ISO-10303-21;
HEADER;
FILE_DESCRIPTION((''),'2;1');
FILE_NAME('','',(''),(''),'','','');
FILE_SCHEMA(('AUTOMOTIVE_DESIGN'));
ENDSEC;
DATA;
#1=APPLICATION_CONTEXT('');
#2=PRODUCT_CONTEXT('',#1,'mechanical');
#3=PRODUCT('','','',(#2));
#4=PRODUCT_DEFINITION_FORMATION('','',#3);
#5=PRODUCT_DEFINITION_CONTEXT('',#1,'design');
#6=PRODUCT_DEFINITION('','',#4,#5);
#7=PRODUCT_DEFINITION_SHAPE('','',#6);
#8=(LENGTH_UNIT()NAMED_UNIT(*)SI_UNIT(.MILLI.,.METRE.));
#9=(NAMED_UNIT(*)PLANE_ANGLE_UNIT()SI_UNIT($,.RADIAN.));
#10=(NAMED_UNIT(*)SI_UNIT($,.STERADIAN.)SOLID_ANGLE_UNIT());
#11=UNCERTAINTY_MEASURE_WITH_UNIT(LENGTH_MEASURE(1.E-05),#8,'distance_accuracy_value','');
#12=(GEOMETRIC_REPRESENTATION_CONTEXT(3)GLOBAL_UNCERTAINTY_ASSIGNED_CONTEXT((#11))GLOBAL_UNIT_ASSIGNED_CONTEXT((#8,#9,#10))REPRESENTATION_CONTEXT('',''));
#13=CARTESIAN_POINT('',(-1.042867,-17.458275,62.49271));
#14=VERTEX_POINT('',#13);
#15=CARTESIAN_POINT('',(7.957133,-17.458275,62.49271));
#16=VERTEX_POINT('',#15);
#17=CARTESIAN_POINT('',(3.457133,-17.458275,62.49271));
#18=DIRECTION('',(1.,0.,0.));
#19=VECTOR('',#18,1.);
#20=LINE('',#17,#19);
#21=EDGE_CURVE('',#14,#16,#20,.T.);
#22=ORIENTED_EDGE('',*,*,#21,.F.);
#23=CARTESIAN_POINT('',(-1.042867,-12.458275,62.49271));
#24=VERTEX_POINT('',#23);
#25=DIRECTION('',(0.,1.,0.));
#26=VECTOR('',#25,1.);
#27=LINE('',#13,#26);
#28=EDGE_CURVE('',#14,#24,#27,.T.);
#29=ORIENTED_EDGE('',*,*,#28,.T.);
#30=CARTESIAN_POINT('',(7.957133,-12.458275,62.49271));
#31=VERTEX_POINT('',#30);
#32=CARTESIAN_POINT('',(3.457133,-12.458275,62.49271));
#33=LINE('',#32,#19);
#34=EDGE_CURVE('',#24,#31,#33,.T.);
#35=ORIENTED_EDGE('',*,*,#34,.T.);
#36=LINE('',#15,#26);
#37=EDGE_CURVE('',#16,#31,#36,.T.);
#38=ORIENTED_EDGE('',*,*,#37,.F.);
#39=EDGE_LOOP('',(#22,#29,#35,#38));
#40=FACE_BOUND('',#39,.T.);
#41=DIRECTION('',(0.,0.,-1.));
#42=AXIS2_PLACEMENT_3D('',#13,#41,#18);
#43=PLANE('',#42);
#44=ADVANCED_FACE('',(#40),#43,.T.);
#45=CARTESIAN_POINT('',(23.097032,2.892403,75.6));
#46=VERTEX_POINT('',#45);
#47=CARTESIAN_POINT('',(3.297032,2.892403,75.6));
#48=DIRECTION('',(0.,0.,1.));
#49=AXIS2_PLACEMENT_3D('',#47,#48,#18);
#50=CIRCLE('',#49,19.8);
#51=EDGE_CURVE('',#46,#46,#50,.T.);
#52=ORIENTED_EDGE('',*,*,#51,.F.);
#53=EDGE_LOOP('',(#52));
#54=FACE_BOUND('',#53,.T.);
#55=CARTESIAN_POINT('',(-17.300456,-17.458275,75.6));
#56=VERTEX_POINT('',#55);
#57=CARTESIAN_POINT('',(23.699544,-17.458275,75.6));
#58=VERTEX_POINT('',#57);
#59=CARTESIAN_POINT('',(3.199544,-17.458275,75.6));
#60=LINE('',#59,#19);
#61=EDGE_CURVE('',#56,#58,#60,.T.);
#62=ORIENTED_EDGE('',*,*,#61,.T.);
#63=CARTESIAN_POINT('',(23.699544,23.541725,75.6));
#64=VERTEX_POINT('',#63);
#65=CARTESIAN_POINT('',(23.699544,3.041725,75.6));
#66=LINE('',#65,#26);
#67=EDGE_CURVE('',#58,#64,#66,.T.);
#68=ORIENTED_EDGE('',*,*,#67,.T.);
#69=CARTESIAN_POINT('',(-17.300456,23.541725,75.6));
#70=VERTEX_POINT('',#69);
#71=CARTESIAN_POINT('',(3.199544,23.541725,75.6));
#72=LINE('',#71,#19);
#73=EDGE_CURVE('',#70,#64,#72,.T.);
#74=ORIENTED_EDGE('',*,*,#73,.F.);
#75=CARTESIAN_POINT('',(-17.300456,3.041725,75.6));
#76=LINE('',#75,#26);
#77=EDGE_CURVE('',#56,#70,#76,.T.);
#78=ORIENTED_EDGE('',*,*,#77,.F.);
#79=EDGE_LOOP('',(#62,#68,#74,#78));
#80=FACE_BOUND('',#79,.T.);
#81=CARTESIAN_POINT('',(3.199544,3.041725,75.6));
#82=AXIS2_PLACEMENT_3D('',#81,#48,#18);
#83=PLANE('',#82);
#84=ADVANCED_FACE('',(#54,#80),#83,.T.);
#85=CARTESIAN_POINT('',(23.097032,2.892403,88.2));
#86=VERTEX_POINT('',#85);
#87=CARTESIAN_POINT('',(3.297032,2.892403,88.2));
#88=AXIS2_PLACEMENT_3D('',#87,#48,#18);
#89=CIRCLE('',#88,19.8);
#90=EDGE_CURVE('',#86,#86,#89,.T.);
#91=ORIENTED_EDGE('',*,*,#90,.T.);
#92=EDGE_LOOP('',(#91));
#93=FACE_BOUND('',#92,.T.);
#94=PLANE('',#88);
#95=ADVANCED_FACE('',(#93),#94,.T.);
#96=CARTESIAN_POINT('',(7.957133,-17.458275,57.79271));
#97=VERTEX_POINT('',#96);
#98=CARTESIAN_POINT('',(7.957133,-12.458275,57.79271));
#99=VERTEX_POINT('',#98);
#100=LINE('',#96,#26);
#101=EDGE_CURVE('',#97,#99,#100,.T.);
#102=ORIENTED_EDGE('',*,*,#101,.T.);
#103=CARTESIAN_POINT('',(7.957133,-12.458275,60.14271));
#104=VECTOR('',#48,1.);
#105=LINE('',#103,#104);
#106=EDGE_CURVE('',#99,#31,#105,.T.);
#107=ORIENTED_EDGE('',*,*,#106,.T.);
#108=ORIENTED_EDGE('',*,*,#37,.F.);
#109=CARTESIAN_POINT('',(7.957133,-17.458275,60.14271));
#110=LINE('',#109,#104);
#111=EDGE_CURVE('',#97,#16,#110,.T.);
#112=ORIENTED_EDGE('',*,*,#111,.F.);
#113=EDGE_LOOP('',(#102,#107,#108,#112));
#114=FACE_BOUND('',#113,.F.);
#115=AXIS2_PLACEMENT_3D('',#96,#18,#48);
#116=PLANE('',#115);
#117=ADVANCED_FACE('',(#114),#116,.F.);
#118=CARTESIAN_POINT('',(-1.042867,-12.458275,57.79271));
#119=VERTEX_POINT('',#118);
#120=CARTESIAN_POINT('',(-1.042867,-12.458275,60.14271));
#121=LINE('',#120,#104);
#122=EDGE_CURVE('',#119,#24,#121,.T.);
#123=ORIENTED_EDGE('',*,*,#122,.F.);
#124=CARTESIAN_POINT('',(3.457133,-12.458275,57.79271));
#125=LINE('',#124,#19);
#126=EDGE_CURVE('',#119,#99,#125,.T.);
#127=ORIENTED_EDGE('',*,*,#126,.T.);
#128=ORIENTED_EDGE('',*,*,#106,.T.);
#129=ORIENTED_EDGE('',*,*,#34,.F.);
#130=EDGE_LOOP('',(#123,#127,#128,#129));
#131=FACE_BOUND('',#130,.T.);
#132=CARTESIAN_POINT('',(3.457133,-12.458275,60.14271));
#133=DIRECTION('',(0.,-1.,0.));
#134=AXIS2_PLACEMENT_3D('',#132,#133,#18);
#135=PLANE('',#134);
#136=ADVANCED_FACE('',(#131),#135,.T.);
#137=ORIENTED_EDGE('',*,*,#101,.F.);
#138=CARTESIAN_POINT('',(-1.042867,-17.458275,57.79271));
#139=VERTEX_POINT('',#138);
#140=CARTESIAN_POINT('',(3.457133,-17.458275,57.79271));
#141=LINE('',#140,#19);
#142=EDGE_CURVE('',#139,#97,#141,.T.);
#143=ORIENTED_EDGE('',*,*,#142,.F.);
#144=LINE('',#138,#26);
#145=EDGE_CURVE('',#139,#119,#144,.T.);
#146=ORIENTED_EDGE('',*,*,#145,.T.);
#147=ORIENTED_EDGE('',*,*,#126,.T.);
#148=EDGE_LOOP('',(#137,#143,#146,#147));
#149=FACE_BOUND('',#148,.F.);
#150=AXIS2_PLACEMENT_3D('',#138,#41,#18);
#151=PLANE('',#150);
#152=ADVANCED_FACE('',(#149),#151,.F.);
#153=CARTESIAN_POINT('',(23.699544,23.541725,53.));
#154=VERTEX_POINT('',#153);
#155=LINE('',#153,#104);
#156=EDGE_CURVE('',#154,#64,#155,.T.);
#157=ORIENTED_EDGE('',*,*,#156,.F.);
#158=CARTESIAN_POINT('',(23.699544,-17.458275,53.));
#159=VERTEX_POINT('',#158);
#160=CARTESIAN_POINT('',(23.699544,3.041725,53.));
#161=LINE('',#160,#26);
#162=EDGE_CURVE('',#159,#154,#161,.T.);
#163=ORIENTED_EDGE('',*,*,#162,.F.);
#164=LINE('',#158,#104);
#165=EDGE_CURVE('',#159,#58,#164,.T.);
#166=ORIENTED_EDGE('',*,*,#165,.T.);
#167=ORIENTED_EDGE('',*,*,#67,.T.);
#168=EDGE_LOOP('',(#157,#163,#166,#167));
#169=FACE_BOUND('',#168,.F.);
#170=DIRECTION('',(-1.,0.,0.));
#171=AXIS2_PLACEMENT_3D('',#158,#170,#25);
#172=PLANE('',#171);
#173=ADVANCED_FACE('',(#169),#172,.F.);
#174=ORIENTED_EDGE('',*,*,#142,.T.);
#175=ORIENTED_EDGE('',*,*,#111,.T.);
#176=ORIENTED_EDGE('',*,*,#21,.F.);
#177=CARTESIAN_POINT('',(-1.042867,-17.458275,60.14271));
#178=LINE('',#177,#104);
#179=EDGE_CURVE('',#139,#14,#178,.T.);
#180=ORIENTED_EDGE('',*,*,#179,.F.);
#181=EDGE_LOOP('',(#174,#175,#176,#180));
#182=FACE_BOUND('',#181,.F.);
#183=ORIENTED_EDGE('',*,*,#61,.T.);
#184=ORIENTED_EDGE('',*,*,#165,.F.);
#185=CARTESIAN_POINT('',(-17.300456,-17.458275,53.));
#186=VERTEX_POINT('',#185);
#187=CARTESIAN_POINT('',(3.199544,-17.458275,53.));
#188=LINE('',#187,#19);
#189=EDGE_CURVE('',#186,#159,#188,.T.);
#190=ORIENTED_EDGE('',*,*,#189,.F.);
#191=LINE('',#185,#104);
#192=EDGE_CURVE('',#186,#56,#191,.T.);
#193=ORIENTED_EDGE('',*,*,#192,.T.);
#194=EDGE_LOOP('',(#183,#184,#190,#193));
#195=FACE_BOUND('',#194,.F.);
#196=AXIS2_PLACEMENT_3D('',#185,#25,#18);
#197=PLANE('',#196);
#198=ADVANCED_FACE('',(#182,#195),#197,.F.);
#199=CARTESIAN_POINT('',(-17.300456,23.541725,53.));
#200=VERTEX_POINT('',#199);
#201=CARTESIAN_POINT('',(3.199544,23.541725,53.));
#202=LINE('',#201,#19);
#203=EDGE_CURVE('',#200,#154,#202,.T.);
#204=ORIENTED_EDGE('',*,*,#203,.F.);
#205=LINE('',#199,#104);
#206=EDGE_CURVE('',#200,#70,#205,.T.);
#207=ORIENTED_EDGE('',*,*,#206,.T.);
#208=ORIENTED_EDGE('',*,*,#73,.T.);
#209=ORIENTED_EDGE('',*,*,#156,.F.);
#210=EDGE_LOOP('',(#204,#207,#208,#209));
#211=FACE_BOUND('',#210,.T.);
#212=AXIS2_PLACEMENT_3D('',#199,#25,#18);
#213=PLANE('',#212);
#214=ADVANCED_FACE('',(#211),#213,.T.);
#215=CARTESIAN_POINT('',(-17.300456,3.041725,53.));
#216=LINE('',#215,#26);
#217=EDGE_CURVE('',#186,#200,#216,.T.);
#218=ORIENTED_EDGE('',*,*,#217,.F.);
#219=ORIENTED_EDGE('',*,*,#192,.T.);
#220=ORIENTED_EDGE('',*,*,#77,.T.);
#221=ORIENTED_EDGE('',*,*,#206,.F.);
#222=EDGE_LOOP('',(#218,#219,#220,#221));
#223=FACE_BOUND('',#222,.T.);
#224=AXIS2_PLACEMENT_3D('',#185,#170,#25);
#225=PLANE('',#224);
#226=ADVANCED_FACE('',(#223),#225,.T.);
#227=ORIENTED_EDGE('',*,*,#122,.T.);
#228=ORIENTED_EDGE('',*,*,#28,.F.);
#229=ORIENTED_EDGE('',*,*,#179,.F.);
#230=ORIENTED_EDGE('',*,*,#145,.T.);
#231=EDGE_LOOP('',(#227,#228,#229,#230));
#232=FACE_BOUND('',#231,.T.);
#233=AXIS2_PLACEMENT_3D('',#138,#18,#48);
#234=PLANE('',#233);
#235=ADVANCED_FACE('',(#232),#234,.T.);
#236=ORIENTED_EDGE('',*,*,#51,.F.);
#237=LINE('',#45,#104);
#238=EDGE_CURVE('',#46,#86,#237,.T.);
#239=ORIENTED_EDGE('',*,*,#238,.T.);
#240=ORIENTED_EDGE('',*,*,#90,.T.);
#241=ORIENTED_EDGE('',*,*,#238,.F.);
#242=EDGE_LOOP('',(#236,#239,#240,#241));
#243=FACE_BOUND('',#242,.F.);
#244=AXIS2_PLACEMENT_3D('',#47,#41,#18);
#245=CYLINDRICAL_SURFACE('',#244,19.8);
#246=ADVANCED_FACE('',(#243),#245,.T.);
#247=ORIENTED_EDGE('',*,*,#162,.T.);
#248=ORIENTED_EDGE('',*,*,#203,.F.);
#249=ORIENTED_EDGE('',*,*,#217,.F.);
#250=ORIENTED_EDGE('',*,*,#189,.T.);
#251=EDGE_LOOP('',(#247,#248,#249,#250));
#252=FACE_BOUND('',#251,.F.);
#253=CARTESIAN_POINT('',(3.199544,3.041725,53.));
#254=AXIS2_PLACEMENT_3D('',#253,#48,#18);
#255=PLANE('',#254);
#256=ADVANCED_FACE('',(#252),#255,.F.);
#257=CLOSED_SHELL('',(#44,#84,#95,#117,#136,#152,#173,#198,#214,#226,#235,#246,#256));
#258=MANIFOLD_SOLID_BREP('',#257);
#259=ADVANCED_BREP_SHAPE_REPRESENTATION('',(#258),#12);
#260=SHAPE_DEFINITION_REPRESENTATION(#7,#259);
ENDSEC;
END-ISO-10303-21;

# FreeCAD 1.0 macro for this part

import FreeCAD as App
import Part
import Sketcher
from FreeCAD import Vector


def add_polygon(sketch, points):
    """Adds a closed chain of lines whose ends are joined by coincident constraints."""
    first, n = sketch.GeometryCount, len(points)
    for a, b in zip(points, points[1:] + points[:1]):
        sketch.addGeometry(Part.LineSegment(App.Vector(*a, 0), App.Vector(*b, 0)), False)
    for i in range(n):
        sketch.addConstraint(Sketcher.Constraint("Coincident", first + i, 2, first + (i + 1) % n, 1))

doc = App.newDocument("Part")
body = doc.addObject("PartDesign::Body", "Body")

sketch1 = body.newObject("Sketcher::SketchObject", "Sketch")
sketch1.AttachmentSupport = (doc.getObject("XY_Plane"), [""])
sketch1.MapMode = "FlatFace"
add_polygon(sketch1, [(-17, 24), (-17, -17), (24, -17), (24, 24)])
sketch1.addConstraint([
    Sketcher.Constraint("Vertical", 0),
    Sketcher.Constraint("Horizontal", 1),
    Sketcher.Constraint("Vertical", 2),
    Sketcher.Constraint("Horizontal", 3),
    Sketcher.Constraint("Equal", 3, 0),
    Sketcher.Constraint("DistanceX", 1, 1, 1, 2, 41.0),
    Sketcher.Constraint("DistanceX", 0, 2, -1, 1, 17.300456),
    Sketcher.Constraint("DistanceY", 0, 2, -1, 1, 17.458275),
])
pad1 = body.newObject("PartDesign::Pad", "Pad")
pad1.Profile = sketch1
pad1.Length = 22.6

sketch2 = body.newObject("Sketcher::SketchObject", "Sketch001")
sketch2.AttachmentSupport = (doc.getObject("XY_Plane"), [""])
sketch2.MapMode = "FlatFace"
sketch2.AttachmentOffset = App.Placement(Vector(0, 0, 22.6), App.Rotation())
sketch2.addGeometry(Part.Circle(Vector(3, 3, 0), Vector(0, 0, 1), 20), False)
sketch2.addConstraint([
    Sketcher.Constraint("Diameter", 0, 39.6),
    Sketcher.Constraint("DistanceX", -1, 1, 0, 3, 3.297032),
    Sketcher.Constraint("DistanceY", -1, 1, 0, 3, 2.892403),
])
pad2 = body.newObject("PartDesign::Pad", "Pad001")
pad2.Profile = sketch2
pad2.Length = 12.6

sketch3 = body.newObject("Sketcher::SketchObject", "Sketch002")
sketch3.AttachmentSupport = (doc.getObject("XZ_Plane"), [""])
sketch3.MapMode = "FlatFace"
sketch3.AttachmentOffset = App.Placement(Vector(0, 0, 17.458275), App.Rotation())
add_polygon(sketch3, [(-1, 9.5), (-1, 4.8), (8, 4.8), (8, 9.5)])
sketch3.addConstraint([
    Sketcher.Constraint("Vertical", 0),
    Sketcher.Constraint("Horizontal", 1),
    Sketcher.Constraint("Vertical", 2),
    Sketcher.Constraint("Horizontal", 3),
    Sketcher.Constraint("DistanceX", 1, 1, 1, 2, 9.0),
    Sketcher.Constraint("DistanceY", 0, 2, 0, 1, 4.7),
    Sketcher.Constraint("DistanceY", -1, 1, 0, 2, 4.79271),
    Sketcher.Constraint("DistanceX", 0, 2, -1, 1, 1.042867),
])
pocket1 = body.newObject("PartDesign::Pocket", "Pocket")
pocket1.Profile = sketch3
pocket1.Length = 5
body2 = doc.addObject("PartDesign::Body", "Body001")
doc.recompute()

body.Placement = App.Placement(Vector(0, 0, 53), App.Rotation(Vector(0, 0, 1), 0))
boolean = body2.newObject("PartDesign::Boolean", "Boolean")
boolean.Type = "Fuse"
boolean.addObjects([body])

doc.recompute()
